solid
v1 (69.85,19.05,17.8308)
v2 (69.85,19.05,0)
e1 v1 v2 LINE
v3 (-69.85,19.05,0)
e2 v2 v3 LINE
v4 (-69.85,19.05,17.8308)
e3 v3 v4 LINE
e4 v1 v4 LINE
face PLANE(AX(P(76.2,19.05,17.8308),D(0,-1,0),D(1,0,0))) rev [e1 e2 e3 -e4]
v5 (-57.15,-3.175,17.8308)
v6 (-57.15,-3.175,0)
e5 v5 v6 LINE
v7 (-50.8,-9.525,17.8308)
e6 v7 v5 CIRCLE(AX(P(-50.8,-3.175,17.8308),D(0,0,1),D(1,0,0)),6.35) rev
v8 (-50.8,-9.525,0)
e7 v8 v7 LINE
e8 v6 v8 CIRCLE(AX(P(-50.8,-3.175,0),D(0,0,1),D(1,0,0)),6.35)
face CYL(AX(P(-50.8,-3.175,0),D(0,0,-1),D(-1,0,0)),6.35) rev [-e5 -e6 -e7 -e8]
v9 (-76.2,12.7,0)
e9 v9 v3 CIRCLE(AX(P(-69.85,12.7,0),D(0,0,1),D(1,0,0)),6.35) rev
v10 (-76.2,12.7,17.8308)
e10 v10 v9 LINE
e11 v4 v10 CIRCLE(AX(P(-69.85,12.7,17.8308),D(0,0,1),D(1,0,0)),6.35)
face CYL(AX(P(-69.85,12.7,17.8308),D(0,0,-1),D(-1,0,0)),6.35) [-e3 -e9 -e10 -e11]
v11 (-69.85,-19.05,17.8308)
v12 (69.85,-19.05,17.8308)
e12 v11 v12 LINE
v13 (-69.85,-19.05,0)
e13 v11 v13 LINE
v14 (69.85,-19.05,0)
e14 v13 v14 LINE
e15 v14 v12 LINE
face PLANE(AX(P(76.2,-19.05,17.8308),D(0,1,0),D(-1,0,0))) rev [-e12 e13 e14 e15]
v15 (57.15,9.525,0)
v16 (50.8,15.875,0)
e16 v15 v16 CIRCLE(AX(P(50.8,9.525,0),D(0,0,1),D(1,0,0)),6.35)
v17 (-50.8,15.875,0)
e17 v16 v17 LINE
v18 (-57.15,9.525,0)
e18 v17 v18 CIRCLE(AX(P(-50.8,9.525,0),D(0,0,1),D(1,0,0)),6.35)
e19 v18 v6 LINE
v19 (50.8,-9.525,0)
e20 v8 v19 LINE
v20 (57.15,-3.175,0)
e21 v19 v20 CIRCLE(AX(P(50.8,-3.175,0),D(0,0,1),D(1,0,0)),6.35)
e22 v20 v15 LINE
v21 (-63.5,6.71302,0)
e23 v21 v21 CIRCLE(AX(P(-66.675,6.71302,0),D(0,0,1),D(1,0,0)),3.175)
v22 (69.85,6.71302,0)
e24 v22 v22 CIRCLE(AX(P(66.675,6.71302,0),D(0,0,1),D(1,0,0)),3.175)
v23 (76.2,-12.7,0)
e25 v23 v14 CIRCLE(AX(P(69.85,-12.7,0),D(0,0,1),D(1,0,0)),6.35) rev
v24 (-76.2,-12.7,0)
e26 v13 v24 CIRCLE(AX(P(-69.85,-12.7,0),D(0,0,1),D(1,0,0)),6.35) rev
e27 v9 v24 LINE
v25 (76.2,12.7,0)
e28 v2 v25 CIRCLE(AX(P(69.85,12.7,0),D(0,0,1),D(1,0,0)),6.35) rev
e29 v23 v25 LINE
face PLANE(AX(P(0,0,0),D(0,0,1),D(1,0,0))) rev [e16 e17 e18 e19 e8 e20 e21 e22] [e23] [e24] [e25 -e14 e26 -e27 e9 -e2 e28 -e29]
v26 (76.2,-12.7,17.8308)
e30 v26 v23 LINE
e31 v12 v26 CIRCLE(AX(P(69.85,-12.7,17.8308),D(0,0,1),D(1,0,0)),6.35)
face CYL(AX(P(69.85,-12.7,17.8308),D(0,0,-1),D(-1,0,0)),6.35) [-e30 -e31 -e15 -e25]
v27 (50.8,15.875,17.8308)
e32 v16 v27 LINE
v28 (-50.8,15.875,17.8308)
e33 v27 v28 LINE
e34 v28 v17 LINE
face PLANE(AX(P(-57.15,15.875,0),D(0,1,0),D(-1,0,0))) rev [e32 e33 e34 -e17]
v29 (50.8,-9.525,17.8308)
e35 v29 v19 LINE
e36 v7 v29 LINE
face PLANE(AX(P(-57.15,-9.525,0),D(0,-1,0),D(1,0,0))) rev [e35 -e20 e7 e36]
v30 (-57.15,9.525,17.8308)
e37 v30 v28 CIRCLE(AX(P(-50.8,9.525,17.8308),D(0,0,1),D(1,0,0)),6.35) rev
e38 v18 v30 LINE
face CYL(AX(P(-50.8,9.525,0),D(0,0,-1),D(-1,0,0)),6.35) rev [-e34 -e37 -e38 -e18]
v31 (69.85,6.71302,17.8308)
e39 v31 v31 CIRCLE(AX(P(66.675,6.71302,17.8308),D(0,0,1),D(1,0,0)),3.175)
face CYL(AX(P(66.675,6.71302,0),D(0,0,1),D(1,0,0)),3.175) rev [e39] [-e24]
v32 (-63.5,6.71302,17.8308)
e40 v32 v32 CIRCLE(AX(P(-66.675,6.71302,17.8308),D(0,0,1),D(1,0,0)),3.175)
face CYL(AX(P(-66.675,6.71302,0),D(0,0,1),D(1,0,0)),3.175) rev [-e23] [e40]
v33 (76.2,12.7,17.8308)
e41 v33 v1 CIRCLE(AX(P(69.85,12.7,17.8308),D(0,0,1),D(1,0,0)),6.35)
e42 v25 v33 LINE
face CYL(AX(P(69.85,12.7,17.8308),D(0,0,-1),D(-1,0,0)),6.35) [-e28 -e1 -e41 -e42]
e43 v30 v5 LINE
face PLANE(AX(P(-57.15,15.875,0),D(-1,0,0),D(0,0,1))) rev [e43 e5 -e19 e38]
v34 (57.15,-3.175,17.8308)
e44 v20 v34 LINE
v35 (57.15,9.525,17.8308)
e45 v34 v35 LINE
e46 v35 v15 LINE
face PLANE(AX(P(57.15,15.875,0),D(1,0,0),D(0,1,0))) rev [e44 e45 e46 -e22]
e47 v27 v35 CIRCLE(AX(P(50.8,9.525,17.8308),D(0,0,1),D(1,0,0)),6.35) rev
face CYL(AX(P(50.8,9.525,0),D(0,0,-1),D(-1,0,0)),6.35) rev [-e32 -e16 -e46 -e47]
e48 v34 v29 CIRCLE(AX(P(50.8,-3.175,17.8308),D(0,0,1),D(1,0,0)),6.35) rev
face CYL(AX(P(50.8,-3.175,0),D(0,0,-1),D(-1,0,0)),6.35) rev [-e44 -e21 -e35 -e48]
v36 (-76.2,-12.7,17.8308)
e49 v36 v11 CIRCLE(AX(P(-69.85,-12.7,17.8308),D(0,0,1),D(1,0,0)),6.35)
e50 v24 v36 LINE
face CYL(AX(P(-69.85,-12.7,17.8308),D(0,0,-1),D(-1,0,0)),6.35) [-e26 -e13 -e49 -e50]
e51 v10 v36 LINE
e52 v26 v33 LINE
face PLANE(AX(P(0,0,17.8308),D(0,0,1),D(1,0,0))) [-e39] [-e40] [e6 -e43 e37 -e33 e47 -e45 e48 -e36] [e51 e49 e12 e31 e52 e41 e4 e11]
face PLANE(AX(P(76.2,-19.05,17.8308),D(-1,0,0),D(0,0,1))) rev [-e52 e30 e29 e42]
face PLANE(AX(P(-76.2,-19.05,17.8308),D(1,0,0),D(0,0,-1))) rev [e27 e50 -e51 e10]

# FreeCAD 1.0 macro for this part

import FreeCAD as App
import Part
import Sketcher
from FreeCAD import Vector
Q = App.Units.Quantity


def edges_at(feature, points):
    """Names of the edges that pass closest to the given points."""
    edges = feature.Shape.Edges
    near = lambda p: min(range(len(edges)), key=lambda i: edges[i].distToShape(Part.Vertex(*p))[0])
    return sorted({f"Edge{near(p) + 1}" for p in points})

doc = App.newDocument("Part")
params = doc.addObject("Spreadsheet::Sheet", "Params")
for row, (alias, value) in enumerate([
    ("sketch1_width", "6 in"),
    ("sketch1_height", "1.5 in"),
    ("pad1_length", "0.702 in"),
    ("sketch2_height", "1 in"),
    ("sketch2_width", "4.5 in"),
    ("fillet_radius", "0.25 in"),
    ("sketch3_diameter", "0.25 in"),
], start=1):
    params.set(f"A{row}", alias)
    params.set(f"B{row}", "=" + value)
    params.setAlias(f"B{row}", alias)

body = doc.addObject("PartDesign::Body", "Body")

# Sketch on XY plane
sketch1 = body.newObject("Sketcher::SketchObject", "Sketch")
sketch1.AttachmentSupport = (doc.getObject("XY_Plane"), [""])
sketch1.MapMode = "FlatFace"
sketch1.addGeometry(Part.LineSegment(Vector(-76, 19, 0), Vector(-76, -19, 0)), False)
sketch1.addGeometry(Part.LineSegment(Vector(-76, -19, 0), Vector(76, -19, 0)), False)
sketch1.addGeometry(Part.LineSegment(Vector(76, -19, 0), Vector(76, 19, 0)), False)
sketch1.addGeometry(Part.LineSegment(Vector(76, 19, 0), Vector(-76, 19, 0)), False)
sketch1.addConstraint(Sketcher.Constraint("Coincident", 0, 2, 1, 1))
sketch1.addConstraint(Sketcher.Constraint("Coincident", 1, 2, 2, 1))
sketch1.addConstraint(Sketcher.Constraint("Coincident", 2, 2, 3, 1))
sketch1.addConstraint(Sketcher.Constraint("Coincident", 3, 2, 0, 1))
sketch1.addConstraint(Sketcher.Constraint("Vertical", 0))
sketch1.addConstraint(Sketcher.Constraint("Horizontal", 1))
sketch1.addConstraint(Sketcher.Constraint("Vertical", 2))
sketch1.addConstraint(Sketcher.Constraint("Horizontal", 3))
sketch1.addConstraint(Sketcher.Constraint("Symmetric", 0, 2, 2, 2, -1, 1))
sketch1.addConstraint(Sketcher.Constraint("DistanceX", 1, 1, 1, 2, Q("6 in")))
sketch1.addConstraint(Sketcher.Constraint("DistanceY", 0, 2, 0, 1, Q("1.5 in")))
sketch1.setExpression("Constraints[9]", "Params.sketch1_width")
sketch1.setExpression("Constraints[10]", "Params.sketch1_height")
pad1 = body.newObject("PartDesign::Pad", "Pad")
pad1.Profile = sketch1
pad1.setExpression("Length", "Params.pad1_length")

# Sketch on XY plane
sketch2 = body.newObject("Sketcher::SketchObject", "Sketch001")
sketch2.AttachmentSupport = (doc.getObject("XY_Plane"), [""])
sketch2.MapMode = "FlatFace"
sketch2.AttachmentOffset = App.Placement(Vector(0, 0, 0.702 * 25.4), App.Rotation())
sketch2.addGeometry(Part.LineSegment(Vector(-57, 16, 0), Vector(-57, -10, 0)), False)
sketch2.addGeometry(Part.LineSegment(Vector(-57, -10, 0), Vector(57, -10, 0)), False)
sketch2.addGeometry(Part.LineSegment(Vector(57, -10, 0), Vector(57, 16, 0)), False)
sketch2.addGeometry(Part.LineSegment(Vector(57, 16, 0), Vector(-57, 16, 0)), False)
sketch2.addConstraint(Sketcher.Constraint("Coincident", 0, 2, 1, 1))
sketch2.addConstraint(Sketcher.Constraint("Coincident", 1, 2, 2, 1))
sketch2.addConstraint(Sketcher.Constraint("Coincident", 2, 2, 3, 1))
sketch2.addConstraint(Sketcher.Constraint("Coincident", 3, 2, 0, 1))
sketch2.addConstraint(Sketcher.Constraint("Vertical", 0))
sketch2.addConstraint(Sketcher.Constraint("Horizontal", 1))
sketch2.addConstraint(Sketcher.Constraint("Vertical", 2))
sketch2.addConstraint(Sketcher.Constraint("Horizontal", 3))
sketch2.addConstraint(Sketcher.Constraint("DistanceY", 0, 2, 0, 1, Q("1 in")))
sketch2.addConstraint(Sketcher.Constraint("DistanceX", 1, 1, 1, 2, Q("4.5 in")))
sketch2.addConstraint(Sketcher.Constraint("DistanceX", 0, 2, -1, 1, Q("2.25 in")))
sketch2.addConstraint(Sketcher.Constraint("DistanceY", 0, 2, -1, 1, Q("0.375 in")))
sketch2.setExpression("Constraints[8]", "Params.sketch2_height")
sketch2.setExpression("Constraints[9]", "Params.sketch2_width")
pocket1 = body.newObject("PartDesign::Pocket", "Pocket")
pocket1.Profile = sketch2
pocket1.Type = "ThroughAll"
doc.recompute()

fillet = body.newObject("PartDesign::Fillet", "Fillet")
fillet.Base = (pocket1, edges_at(pocket1, [
    (-57.15, -9.525, 8.915),
    (-57.15, 15.875, 8.915),
    (57.15, 15.875, 8.915),
    (57.15, -9.525, 8.915),
    (-76.2, 19.05, 8.915),
    (76.2, 19.05, 8.915),
    (76.2, -19.05, 8.915),
    (-76.2, -19.05, 8.915),
]))
fillet.setExpression("Radius", "Params.fillet_radius")

# Sketch on XY plane
sketch3 = body.newObject("Sketcher::SketchObject", "Sketch002")
sketch3.AttachmentSupport = (doc.getObject("XY_Plane"), [""])
sketch3.MapMode = "FlatFace"
sketch3.AttachmentOffset = App.Placement(Vector(0, 0, 0.702 * 25.4), App.Rotation())
sketch3.addGeometry(Part.Circle(Vector(-66.7, 6.7, 0), Vector(0, 0, 1), 3.2), False)
sketch3.addGeometry(Part.Circle(Vector(66.7, 6.7, 0), Vector(0, 0, 1), 3.2), False)
sketch3.addConstraint(Sketcher.Constraint("Equal", 0, 1))
sketch3.addConstraint(Sketcher.Constraint("Symmetric", 0, 3, 1, 3, -2))
sketch3.addConstraint(Sketcher.Constraint("Diameter", 0, Q("0.25 in")))
sketch3.addConstraint(Sketcher.Constraint("DistanceX", 0, 3, 1, 3, Q("5.25 in")))
sketch3.addConstraint(Sketcher.Constraint("DistanceY", -1, 1, 0, 3, 6.71302))
sketch3.setExpression("Constraints[2]", "Params.sketch3_diameter")
pocket2 = body.newObject("PartDesign::Pocket", "Pocket001")
pocket2.Profile = sketch3
pocket2.Type = "ThroughAll"

doc.recompute()
